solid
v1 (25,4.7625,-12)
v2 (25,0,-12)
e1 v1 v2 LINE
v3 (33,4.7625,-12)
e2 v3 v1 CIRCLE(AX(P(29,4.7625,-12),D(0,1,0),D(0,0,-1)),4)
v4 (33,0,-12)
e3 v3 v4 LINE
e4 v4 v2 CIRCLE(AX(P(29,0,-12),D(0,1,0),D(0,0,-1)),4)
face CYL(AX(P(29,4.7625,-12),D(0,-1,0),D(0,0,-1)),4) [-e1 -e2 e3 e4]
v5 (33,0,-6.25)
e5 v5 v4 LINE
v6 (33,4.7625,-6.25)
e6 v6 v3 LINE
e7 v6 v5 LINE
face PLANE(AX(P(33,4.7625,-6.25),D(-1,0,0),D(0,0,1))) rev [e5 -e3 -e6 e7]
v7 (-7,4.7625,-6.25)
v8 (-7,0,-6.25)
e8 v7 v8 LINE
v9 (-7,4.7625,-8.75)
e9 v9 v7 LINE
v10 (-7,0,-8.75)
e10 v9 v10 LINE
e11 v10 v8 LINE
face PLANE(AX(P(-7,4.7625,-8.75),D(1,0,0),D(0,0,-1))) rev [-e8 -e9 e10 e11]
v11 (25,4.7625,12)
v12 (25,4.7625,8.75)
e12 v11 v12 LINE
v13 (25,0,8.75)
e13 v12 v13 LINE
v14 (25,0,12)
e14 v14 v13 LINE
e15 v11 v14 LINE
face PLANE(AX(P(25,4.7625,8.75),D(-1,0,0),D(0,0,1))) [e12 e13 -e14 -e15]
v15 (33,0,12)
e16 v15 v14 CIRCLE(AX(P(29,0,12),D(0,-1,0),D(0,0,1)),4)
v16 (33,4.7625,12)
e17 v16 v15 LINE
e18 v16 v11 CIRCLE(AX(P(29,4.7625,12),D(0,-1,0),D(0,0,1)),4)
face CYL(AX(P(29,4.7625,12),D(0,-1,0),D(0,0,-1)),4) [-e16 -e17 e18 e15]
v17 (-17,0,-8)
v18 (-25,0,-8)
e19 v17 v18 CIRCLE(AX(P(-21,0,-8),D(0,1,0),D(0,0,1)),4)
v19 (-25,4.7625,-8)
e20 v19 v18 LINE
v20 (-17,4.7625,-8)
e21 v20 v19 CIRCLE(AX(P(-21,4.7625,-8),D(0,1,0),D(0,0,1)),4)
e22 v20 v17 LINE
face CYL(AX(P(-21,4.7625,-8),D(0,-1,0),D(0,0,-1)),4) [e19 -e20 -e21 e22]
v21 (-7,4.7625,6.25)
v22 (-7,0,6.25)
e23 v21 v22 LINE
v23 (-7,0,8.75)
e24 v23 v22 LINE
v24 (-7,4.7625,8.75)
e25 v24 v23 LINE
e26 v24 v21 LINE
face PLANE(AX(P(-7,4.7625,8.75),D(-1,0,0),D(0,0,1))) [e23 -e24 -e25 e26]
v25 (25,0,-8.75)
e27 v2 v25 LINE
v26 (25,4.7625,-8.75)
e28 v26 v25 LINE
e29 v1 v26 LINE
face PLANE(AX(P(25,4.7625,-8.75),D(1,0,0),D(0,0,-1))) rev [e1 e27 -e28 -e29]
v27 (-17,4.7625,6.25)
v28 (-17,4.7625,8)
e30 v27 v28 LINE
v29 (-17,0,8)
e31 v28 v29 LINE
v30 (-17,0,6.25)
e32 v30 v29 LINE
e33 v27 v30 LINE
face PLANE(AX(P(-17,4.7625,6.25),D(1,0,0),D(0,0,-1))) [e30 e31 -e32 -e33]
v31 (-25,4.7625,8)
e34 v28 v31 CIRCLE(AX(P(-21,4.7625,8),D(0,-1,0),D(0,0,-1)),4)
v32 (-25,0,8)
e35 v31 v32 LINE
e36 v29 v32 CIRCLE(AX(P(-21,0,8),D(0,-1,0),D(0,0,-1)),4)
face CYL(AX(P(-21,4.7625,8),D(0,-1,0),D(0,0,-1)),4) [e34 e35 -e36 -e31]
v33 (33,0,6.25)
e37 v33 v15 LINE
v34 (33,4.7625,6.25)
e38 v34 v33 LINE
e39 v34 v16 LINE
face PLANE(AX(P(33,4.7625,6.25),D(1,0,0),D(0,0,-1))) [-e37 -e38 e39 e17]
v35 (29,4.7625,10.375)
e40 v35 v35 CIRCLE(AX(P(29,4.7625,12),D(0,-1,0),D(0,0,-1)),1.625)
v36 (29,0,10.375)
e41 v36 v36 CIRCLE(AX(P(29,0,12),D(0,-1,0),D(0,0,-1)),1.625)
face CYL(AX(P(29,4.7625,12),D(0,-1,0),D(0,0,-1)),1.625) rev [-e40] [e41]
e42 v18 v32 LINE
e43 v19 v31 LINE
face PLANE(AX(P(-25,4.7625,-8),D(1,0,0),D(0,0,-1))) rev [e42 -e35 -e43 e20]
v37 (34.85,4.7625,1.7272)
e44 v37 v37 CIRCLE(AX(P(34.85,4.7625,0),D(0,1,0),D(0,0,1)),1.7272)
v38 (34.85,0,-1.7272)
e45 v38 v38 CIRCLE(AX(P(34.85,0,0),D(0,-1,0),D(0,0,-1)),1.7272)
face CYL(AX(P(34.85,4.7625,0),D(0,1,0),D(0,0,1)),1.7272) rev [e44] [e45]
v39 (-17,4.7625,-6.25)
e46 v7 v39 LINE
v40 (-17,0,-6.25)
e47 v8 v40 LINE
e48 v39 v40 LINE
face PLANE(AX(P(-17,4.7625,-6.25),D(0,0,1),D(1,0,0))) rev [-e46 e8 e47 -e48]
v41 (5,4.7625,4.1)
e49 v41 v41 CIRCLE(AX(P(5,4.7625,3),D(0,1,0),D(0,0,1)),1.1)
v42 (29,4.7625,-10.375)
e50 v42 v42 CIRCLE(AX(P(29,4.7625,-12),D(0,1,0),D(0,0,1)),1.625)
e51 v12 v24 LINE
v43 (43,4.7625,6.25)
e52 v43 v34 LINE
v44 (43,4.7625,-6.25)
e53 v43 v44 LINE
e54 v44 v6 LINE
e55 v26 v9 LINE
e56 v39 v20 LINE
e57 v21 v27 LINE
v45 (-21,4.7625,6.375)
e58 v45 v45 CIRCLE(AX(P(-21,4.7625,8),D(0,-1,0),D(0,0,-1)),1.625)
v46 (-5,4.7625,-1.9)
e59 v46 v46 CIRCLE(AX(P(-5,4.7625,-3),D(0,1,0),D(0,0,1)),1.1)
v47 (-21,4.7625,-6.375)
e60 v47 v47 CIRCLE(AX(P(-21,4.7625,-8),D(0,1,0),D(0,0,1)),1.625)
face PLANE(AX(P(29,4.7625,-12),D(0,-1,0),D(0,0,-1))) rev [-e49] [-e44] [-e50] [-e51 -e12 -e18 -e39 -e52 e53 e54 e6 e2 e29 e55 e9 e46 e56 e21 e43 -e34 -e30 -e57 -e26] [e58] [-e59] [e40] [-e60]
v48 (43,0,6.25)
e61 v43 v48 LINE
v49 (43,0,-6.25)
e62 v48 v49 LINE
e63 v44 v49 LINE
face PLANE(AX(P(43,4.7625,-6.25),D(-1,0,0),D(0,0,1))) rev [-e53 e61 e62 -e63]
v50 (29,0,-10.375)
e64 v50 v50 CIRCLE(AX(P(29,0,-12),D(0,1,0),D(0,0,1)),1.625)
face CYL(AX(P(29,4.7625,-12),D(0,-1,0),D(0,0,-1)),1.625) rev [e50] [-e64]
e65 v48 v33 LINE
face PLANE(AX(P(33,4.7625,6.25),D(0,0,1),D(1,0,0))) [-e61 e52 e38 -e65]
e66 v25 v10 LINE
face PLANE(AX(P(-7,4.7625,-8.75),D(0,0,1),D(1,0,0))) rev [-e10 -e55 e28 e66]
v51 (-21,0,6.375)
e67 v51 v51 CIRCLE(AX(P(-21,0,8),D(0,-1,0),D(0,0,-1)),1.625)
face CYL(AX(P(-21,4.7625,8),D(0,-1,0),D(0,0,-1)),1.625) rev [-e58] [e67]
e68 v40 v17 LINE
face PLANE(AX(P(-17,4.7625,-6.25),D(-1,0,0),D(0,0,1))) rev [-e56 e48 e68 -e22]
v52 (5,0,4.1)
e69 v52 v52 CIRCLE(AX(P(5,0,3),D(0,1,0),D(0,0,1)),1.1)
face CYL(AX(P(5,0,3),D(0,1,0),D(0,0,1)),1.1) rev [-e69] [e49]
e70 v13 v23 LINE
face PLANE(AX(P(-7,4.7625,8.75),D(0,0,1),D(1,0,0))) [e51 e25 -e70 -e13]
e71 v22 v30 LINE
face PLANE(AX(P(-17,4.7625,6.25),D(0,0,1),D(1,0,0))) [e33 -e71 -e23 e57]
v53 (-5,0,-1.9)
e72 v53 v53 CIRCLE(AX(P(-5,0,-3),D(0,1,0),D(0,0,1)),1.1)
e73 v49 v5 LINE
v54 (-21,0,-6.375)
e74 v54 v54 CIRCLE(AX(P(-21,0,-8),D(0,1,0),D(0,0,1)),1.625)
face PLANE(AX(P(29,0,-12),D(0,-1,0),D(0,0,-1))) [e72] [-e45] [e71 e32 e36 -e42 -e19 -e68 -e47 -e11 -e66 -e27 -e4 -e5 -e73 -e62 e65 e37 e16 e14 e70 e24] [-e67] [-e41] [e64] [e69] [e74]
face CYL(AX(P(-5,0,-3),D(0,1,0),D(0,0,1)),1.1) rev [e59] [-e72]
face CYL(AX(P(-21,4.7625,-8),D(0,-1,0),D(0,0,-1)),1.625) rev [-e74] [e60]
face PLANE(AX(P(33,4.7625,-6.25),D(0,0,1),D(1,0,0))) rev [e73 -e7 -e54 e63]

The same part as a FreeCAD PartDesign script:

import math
import FreeCAD as App
import Part
import Sketcher
Q = App.Units.Quantity

doc = App.newDocument("Part")
body = doc.addObject("PartDesign::Body", "Body")

sketch1 = body.newObject("Sketcher::SketchObject", "Sketch")
sketch1.AttachmentSupport = (doc.getObject("XZ_Plane"), [""])
sketch1.MapMode = "FlatFace"
sketch1.addGeometry([
    Part.LineSegment(App.Vector(-17, -6.2, 0), App.Vector(-17, -8, 0)),
    Part.ArcOfCircle(Part.Circle(App.Vector(-21, -8, 0), App.Vector(0, 0, 1), 4), math.radians(180), math.radians(360)),
    Part.LineSegment(App.Vector(-25, -8, 0), App.Vector(-25, 0, 0)),
    Part.LineSegment(App.Vector(-25, 0, 0), App.Vector(43, 0, 0)),
    Part.LineSegment(App.Vector(43, 0, 0), App.Vector(43, -6.2, 0)),
    Part.LineSegment(App.Vector(43, -6.2, 0), App.Vector(33, -6.2, 0)),
    Part.LineSegment(App.Vector(33, -6.2, 0), App.Vector(33, -12, 0)),
    Part.ArcOfCircle(Part.Circle(App.Vector(29, -12, 0), App.Vector(0, 0, 1), 4), math.radians(180), math.radians(360)),
    Part.LineSegment(App.Vector(25, -12, 0), App.Vector(25, -8.8, 0)),
    Part.LineSegment(App.Vector(25, -8.8, 0), App.Vector(-7, -8.8, 0)),
    Part.LineSegment(App.Vector(-7, -8.8, 0), App.Vector(-7, -6.2, 0)),
    Part.LineSegment(App.Vector(-7, -6.2, 0), App.Vector(-17, -6.2, 0)),
    Part.Circle(App.Vector(-21, -8, 0), App.Vector(0, 0, 1), 1.6),
    Part.Circle(App.Vector(29, -12, 0), App.Vector(0, 0, 1), 1.6),
], False)
sketch1.addConstraint([
    Sketcher.Constraint("Tangent", 0, 2, 1, 2),
    Sketcher.Constraint("Tangent", 1, 1, 2, 1),
    Sketcher.Constraint("Coincident", 2, 2, 3, 1),
    Sketcher.Constraint("Coincident", 3, 2, 4, 1),
    Sketcher.Constraint("Coincident", 4, 2, 5, 1),
    Sketcher.Constraint("Coincident", 5, 2, 6, 1),
    Sketcher.Constraint("Tangent", 6, 2, 7, 2),
    Sketcher.Constraint("Tangent", 7, 1, 8, 1),
    Sketcher.Constraint("Coincident", 8, 2, 9, 1),
    Sketcher.Constraint("Coincident", 9, 2, 10, 1),
    Sketcher.Constraint("Coincident", 10, 2, 11, 1),
    Sketcher.Constraint("Coincident", 11, 2, 0, 1),
    Sketcher.Constraint("Vertical", 0),
    Sketcher.Constraint("Vertical", 2),
    Sketcher.Constraint("Horizontal", 3),
    Sketcher.Constraint("Vertical", 4),
    Sketcher.Constraint("Horizontal", 5),
    Sketcher.Constraint("Vertical", 6),
    Sketcher.Constraint("Vertical", 8),
    Sketcher.Constraint("Horizontal", 9),
    Sketcher.Constraint("Vertical", 10),
    Sketcher.Constraint("Horizontal", 11),
    Sketcher.Constraint("Coincident", 12, 3, 1, 3),
    Sketcher.Constraint("Coincident", 13, 3, 7, 3),
    Sketcher.Constraint("Equal", 1, 7),
    Sketcher.Constraint("Equal", 12, 13),
    Sketcher.Constraint("PointOnObject", 2, 2, -1),
    Sketcher.Constraint("Horizontal", 5, 2, 10, 2),
    Sketcher.Constraint("Equal", 5, 11),
    Sketcher.Constraint("Radius", 1, Q("4 mm")),
    Sketcher.Constraint("Diameter", 12, Q("3.25 mm")),
    Sketcher.Constraint("DistanceX", 3, 1, 3, 2, Q("68 mm")),
    Sketcher.Constraint("DistanceX", 5, 2, 5, 1, Q("10 mm")),
    Sketcher.Constraint("DistanceY", 2, 1, 2, 2, Q("8 mm")),
    Sketcher.Constraint("DistanceY", 10, 1, 10, 2, Q("2.5 mm")),
    Sketcher.Constraint("DistanceX", 1, 3, -1, 1, Q("21 mm")),
    Sketcher.Constraint("DistanceY", 7, 3, -1, 1, Q("12 mm")),
    Sketcher.Constraint("DistanceY", 0, 2, 0, 1, Q("1.75 mm")),
])
pad1 = body.newObject("PartDesign::Pad", "Pad")
pad1.Profile = sketch1
pad1.Length = 4.7625
pad1.Reversed = True
doc.recompute()

mirrored = body.newObject("PartDesign::Mirrored", "Mirrored")
mirrored.Originals = [pad1]
mirrored.MirrorPlane = (doc.getObject("XY_Plane"), [""])
body.Tip = mirrored

sketch2 = body.newObject("Sketcher::SketchObject", "Sketch001")
sketch2.AttachmentSupport = (doc.getObject("XZ_Plane"), [""])
sketch2.MapMode = "FlatFace"
sketch2.AttachmentOffset = App.Placement(App.Vector(0, 0, -4.7625), App.Rotation())
sketch2.addGeometry([
    Part.Circle(App.Vector(5, 3, 0), App.Vector(0, 0, 1), 1.1),
    Part.Circle(App.Vector(-5, -3, 0), App.Vector(0, 0, 1), 1.1),
], False)
sketch2.addConstraint([
    Sketcher.Constraint("Equal", 0, 1),
    Sketcher.Constraint("Symmetric", 0, 3, 1, 3, -1, 1),
    Sketcher.Constraint("Diameter", 0, Q("2.2 mm")),
    Sketcher.Constraint("DistanceX", -1, 1, 0, 3, Q("5 mm")),
    Sketcher.Constraint("DistanceY", -1, 1, 0, 3, Q("3 mm")),
])
pocket1 = body.newObject("PartDesign::Pocket", "Pocket")
pocket1.Profile = sketch2
pocket1.Type = "ThroughAll"
pocket1.Reversed = True

sketch3 = body.newObject("Sketcher::SketchObject", "Sketch002")
sketch3.AttachmentSupport = (doc.getObject("XZ_Plane"), [""])
sketch3.MapMode = "FlatFace"
sketch3.AttachmentOffset = App.Placement(App.Vector(0, 0, -4.7625), App.Rotation())
sketch3.addGeometry(Part.Circle(App.Vector(34.9, 0, 0), App.Vector(0, 0, 1), 1.7), False)
sketch3.addConstraint([
    Sketcher.Constraint("PointOnObject", 0, 3, -1),
    Sketcher.Constraint("Diameter", 0, Q("3.4544 mm")),
    Sketcher.Constraint("DistanceX", -1, 1, 0, 3, Q("34.85 mm")),
])
doc.recompute()
hole = body.newObject("PartDesign::Hole", "Hole")
hole.Profile = sketch3
hole.ThreadType = "None"
hole.Diameter = 3.4544
hole.DepthType = "Dimension"
hole.Depth = 12.29
hole.DrillPoint = "Angled"
hole.DrillPointAngle = 118
hole.Reversed = True

doc.recompute()
